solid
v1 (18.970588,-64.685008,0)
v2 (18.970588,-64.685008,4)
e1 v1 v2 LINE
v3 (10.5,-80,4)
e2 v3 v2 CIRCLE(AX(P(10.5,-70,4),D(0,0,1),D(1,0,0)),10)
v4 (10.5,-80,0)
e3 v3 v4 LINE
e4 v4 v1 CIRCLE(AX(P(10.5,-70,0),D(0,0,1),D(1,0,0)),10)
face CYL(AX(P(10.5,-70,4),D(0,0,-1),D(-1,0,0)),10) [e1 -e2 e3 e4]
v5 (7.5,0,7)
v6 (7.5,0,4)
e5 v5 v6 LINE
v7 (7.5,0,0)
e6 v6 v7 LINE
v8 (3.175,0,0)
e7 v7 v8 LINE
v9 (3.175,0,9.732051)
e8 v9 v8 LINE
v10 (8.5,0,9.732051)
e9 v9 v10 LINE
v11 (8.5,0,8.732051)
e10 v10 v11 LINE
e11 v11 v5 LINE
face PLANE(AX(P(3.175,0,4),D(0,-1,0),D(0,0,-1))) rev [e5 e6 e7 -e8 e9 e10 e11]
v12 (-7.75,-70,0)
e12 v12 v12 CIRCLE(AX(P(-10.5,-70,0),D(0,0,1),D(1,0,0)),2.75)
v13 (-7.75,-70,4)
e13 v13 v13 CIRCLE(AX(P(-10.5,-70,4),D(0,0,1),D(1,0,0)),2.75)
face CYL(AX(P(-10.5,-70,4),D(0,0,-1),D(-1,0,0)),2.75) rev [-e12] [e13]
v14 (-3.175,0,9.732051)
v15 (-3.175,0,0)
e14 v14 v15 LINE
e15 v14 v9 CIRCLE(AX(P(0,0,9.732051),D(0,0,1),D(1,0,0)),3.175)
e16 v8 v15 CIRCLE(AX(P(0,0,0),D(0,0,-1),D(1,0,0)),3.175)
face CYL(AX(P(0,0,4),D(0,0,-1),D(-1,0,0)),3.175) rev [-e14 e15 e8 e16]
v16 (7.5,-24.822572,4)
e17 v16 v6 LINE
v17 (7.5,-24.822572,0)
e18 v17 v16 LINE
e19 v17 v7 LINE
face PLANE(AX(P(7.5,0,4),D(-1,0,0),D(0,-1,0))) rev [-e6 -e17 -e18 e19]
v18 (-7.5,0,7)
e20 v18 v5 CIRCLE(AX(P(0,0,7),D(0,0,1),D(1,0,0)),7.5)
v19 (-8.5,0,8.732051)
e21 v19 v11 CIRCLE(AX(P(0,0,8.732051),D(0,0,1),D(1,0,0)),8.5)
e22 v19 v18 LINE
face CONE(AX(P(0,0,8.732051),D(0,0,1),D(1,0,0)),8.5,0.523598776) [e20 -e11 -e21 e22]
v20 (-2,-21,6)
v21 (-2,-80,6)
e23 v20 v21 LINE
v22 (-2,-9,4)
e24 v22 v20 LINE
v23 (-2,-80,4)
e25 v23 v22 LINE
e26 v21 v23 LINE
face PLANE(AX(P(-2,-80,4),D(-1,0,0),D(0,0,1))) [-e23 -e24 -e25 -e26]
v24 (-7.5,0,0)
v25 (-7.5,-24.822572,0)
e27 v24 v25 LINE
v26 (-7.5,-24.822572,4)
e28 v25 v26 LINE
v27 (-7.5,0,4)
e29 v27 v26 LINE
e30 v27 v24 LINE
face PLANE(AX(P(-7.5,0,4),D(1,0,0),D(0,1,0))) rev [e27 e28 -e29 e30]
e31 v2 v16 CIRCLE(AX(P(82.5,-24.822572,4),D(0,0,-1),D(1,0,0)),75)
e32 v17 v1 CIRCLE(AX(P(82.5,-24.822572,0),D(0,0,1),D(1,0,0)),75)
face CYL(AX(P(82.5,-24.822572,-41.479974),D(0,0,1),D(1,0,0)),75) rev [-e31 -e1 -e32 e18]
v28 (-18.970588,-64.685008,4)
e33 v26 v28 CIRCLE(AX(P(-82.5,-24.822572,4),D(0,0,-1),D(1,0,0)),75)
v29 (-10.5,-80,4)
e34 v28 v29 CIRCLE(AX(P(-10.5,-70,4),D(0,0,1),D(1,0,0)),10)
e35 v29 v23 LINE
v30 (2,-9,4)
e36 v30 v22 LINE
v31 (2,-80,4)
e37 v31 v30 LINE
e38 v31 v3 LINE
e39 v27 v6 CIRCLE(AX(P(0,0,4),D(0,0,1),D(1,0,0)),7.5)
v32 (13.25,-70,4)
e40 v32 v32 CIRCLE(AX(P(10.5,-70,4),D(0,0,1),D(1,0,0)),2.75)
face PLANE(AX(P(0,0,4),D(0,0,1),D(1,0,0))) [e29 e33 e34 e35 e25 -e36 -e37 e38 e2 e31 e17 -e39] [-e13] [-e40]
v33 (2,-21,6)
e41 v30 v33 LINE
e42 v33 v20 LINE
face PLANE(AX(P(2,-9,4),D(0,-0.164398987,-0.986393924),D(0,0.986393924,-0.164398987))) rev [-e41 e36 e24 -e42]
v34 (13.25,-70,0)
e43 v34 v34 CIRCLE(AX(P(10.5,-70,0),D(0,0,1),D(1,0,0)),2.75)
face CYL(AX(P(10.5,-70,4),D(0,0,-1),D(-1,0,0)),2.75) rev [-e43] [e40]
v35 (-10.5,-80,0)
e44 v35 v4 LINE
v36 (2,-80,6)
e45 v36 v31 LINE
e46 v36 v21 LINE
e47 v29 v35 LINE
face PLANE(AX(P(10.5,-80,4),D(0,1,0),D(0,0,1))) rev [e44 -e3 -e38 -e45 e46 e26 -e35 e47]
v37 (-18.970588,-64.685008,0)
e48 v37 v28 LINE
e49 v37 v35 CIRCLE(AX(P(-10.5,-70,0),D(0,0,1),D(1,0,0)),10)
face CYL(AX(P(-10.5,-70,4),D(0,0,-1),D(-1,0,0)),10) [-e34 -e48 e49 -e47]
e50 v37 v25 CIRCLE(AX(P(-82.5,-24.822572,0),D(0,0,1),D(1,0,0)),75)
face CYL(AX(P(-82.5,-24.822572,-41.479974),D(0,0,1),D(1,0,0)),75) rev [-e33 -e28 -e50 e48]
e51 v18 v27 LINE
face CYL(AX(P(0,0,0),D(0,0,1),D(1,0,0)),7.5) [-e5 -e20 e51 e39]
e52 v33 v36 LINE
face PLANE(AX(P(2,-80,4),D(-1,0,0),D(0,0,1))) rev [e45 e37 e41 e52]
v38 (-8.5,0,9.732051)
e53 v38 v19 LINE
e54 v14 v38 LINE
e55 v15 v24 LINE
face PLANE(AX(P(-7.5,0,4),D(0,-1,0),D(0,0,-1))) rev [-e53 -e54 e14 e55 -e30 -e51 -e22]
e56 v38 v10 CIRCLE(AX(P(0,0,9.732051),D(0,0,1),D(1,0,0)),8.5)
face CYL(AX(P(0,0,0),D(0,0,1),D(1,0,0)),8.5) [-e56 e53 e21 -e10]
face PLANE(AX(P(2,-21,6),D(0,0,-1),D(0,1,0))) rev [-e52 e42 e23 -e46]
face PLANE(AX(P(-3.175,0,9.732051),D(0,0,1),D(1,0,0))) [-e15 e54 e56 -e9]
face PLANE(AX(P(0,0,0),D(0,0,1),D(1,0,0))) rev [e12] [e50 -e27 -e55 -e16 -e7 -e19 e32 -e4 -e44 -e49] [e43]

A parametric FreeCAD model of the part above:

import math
import FreeCAD as App
import Part
import Sketcher

V = App.Vector
Q = App.Units.Quantity


def add_polygon(sketch, points):
    """Adds a closed chain of lines whose ends are joined by coincident constraints."""
    first, n = sketch.GeometryCount, len(points)
    for a, b in zip(points, points[1:] + points[:1]):
        sketch.addGeometry(Part.LineSegment(App.Vector(*a, 0), App.Vector(*b, 0)), False)
    for i in range(n):
        sketch.addConstraint(Sketcher.Constraint("Coincident", first + i, 2, first + (i + 1) % n, 1))

doc = App.newDocument("Part")
body = doc.addObject("PartDesign::Body", "Body")

# Sketch on XY plane
sketch1 = body.newObject("Sketcher::SketchObject", "Sketch")
sketch1.AttachmentSupport = (doc.getObject("XY_Plane"), [""])
sketch1.MapMode = "FlatFace"
sketch1.addGeometry([
    Part.LineSegment(V(-7.5, -60, 0), V(-10.5, -60, 0)),  # 0
    Part.ArcOfCircle(Part.Circle(V(-10.5, -70, 0), V(0, 0, 1), 10), math.radians(90), math.radians(270)),  # 1
    Part.LineSegment(V(-10.5, -80, 0), V(10.5, -80, 0)),  # 2
    Part.ArcOfCircle(Part.Circle(V(10.5, -70, 0), V(0, 0, 1), 10), math.radians(-90), math.radians(90)),  # 3
    Part.LineSegment(V(10.5, -60, 0), V(7.5, -60, 0)),  # 4
    Part.LineSegment(V(7.5, -60, 0), V(7.5, 0, 0)),  # 5
    Part.LineSegment(V(7.5, 0, 0), V(3.2, 0, 0)),  # 6
    Part.ArcOfCircle(Part.Circle(V(0, 0, 0), V(0, 0, 1), 3.2), math.radians(180), math.radians(360)),  # 7
    Part.LineSegment(V(-3.2, 0, 0), V(-7.5, 0, 0)),  # 8
    Part.LineSegment(V(-7.5, 0, 0), V(-7.5, -60, 0)),  # 9
    Part.Circle(V(10.5, -70, 0), V(0, 0, 1), 2.8),  # 10
    Part.Circle(V(-10.5, -70, 0), V(0, 0, 1), 2.8),  # 11
], False)
sketch1.addConstraint([
    Sketcher.Constraint("Tangent", 0, 2, 1, 1),
    Sketcher.Constraint("Tangent", 1, 2, 2, 1),
    Sketcher.Constraint("Tangent", 2, 2, 3, 1),
    Sketcher.Constraint("Tangent", 3, 2, 4, 1),
    Sketcher.Constraint("Coincident", 4, 2, 5, 1),
    Sketcher.Constraint("Coincident", 5, 2, 6, 1),
    Sketcher.Constraint("Coincident", 6, 2, 7, 2),
    Sketcher.Constraint("Coincident", 7, 1, 8, 1),
    Sketcher.Constraint("Coincident", 8, 2, 9, 1),
    Sketcher.Constraint("Coincident", 9, 2, 0, 1),
    Sketcher.Constraint("Horizontal", 0),
    Sketcher.Constraint("Horizontal", 2),
    Sketcher.Constraint("Horizontal", 4),
    Sketcher.Constraint("Vertical", 5),
    Sketcher.Constraint("Horizontal", 6),
    Sketcher.Constraint("Horizontal", 8),
    Sketcher.Constraint("Vertical", 9),
    Sketcher.Constraint("Coincident", 7, 3, -1, 1),
    Sketcher.Constraint("Coincident", 10, 3, 3, 3),
    Sketcher.Constraint("Coincident", 11, 3, 1, 3),
    Sketcher.Constraint("Equal", 1, 3),
    Sketcher.Constraint("Equal", 10, 11),
    Sketcher.Constraint("Symmetric", 5, 2, 8, 2, -1, 1),
    Sketcher.Constraint("PointOnObject", 5, 2, -1),
    Sketcher.Constraint("Equal", 0, 4),
    Sketcher.Constraint("Radius", 1, 10.0),
    Sketcher.Constraint("Diameter", 10, 5.5),
    Sketcher.Constraint("DistanceX", 0, 2, 0, 1, 3.0),
    Sketcher.Constraint("DistanceX", 2, 1, 2, 2, 21.0),
    Sketcher.Constraint("DistanceY", 5, 1, 5, 2, 60.0),
    Sketcher.Constraint("Radius", 7, 3.175),
])
pad1 = body.newObject("PartDesign::Pad", "Pad")
pad1.Profile = sketch1
pad1.Length = 4

# Sketch on XZ plane
sketch2 = body.newObject("Sketcher::SketchObject", "Sketch001")
sketch2.AttachmentSupport = (doc.getObject("XZ_Plane"), [""])
sketch2.MapMode = "FlatFace"
add_polygon(sketch2, [(7.5, 4), (3.2, 4), (3.2, 9.7), (8.5, 9.7), (8.5, 8.7), (7.5, 7)])  # lines 0-5
sketch2.addConstraint([
    Sketcher.Constraint("Horizontal", 0),
    Sketcher.Constraint("Vertical", 1),
    Sketcher.Constraint("Horizontal", 2),
    Sketcher.Constraint("Vertical", 3),
    Sketcher.Constraint("Vertical", 5),
    Sketcher.Constraint("DistanceY", 3, 2, 3, 1, 1.0),
    Sketcher.Constraint("DistanceY", 5, 2, 5, 1, 3.0),
    Sketcher.Constraint("Angle", 4, Q("-120 deg")),
    Sketcher.Constraint("Distance", 4, 2.0),
    Sketcher.Constraint("DistanceY", -1, 1, 0, 2, 4.0),
    Sketcher.Constraint("DistanceX", -1, 1, 2, 2, 8.5),
    Sketcher.Constraint("DistanceX", 0, 2, 0, 1, 4.325),
])
revolution = body.newObject("PartDesign::Revolution", "Revolution")
revolution.Profile = sketch2
revolution.ReferenceAxis = (sketch2, ["V_Axis"])
revolution.Angle = 180
revolution.Reversed = True

# Sketch on YZ plane
sketch3 = body.newObject("Sketcher::SketchObject", "Sketch002")
sketch3.AttachmentSupport = (doc.getObject("YZ_Plane"), [""])
sketch3.MapMode = "FlatFace"
add_polygon(sketch3, [(-9, 4), (-21, 6), (-80, 6), (-80, 4)])  # lines 0-3
sketch3.addConstraint([
    Sketcher.Constraint("Horizontal", 1),
    Sketcher.Constraint("Vertical", 2),
    Sketcher.Constraint("Horizontal", 3),
    Sketcher.Constraint("DistanceX", 1, 2, 1, 1, 59.0),
    Sketcher.Constraint("DistanceX", 3, 1, 3, 2, 71.0),
    Sketcher.Constraint("DistanceY", 2, 2, 2, 1, 2.0),
    Sketcher.Constraint("DistanceX", 0, 2, -1, 1, 21.0),
    Sketcher.Constraint("DistanceY", -1, 1, 0, 2, 6.0),
])
pad2 = body.newObject("PartDesign::Pad", "Pad001")
pad2.Profile = sketch3
pad2.Length = 4
pad2.Midplane = True

# Sketch on XY plane
sketch4 = body.newObject("Sketcher::SketchObject", "Sketch003")
sketch4.AttachmentSupport = (doc.getObject("XY_Plane"), [""])
sketch4.MapMode = "FlatFace"
sketch4.AttachmentOffset = App.Placement(V(0, 0, 4), App.Rotation())
sketch4.addGeometry([
    Part.LineSegment(V(-10.5, -60, 0), V(-7.5, -60, 0)),  # 0
    Part.LineSegment(V(-7.5, -60, 0), V(-7.5, -24.8, 0)),  # 1
    Part.ArcOfCircle(Part.Circle(V(-82.5, -24.8, 0), V(0, 0, 1), 75), math.radians(-32), math.radians(0)),  # 2
    Part.ArcOfCircle(Part.Circle(V(-10.5, -70, 0), V(0, 0, 1), 10), math.radians(90), math.radians(148)),  # 3
    Part.LineSegment(V(7.5, -24.8, 0), V(7.5, -60, 0)),  # 4
    Part.LineSegment(V(7.5, -60, 0), V(10.5, -60, 0)),  # 5
    Part.ArcOfCircle(Part.Circle(V(10.5, -70, 0), V(0, 0, 1), 10), math.radians(32), math.radians(90)),  # 6
    Part.ArcOfCircle(Part.Circle(V(82.5, -24.8, 0), V(0, 0, 1), 75), math.radians(180), math.radians(212)),  # 7
], False)
sketch4.addConstraint([
    Sketcher.Constraint("Coincident", 0, 2, 1, 1),
    Sketcher.Constraint("Tangent", 1, 2, 2, 2),
    Sketcher.Constraint("Tangent", 2, 1, 3, 2),
    Sketcher.Constraint("Tangent", 3, 1, 0, 1),
    Sketcher.Constraint("Coincident", 4, 2, 5, 1),
    Sketcher.Constraint("Tangent", 5, 2, 6, 2),
    Sketcher.Constraint("Tangent", 6, 1, 7, 2),
    Sketcher.Constraint("Tangent", 7, 1, 4, 1),
    Sketcher.Constraint("Horizontal", 0),
    Sketcher.Constraint("Vertical", 1),
    Sketcher.Constraint("Vertical", 4),
    Sketcher.Constraint("Horizontal", 5),
    Sketcher.Constraint("Equal", 3, 6),
    Sketcher.Constraint("Equal", 2, 7),
    Sketcher.Constraint("Symmetric", 3, 3, 6, 3, -2),
    Sketcher.Constraint("Horizontal", 2, 3, 7, 3),
    Sketcher.Constraint("Radius", 2, 75.0),
    Sketcher.Constraint("Radius", 3, 10.0),
    Sketcher.Constraint("DistanceX", 0, 1, 0, 2, 3.0),
    Sketcher.Constraint("DistanceY", 3, 3, -1, 1, 70.0),
    Sketcher.Constraint("DistanceX", 3, 3, 6, 3, 21.0),
])
pad3 = body.newObject("PartDesign::Pad", "Pad002")
pad3.Profile = sketch4
pad3.Length = 4
pad3.Reversed = True

doc.recompute()
